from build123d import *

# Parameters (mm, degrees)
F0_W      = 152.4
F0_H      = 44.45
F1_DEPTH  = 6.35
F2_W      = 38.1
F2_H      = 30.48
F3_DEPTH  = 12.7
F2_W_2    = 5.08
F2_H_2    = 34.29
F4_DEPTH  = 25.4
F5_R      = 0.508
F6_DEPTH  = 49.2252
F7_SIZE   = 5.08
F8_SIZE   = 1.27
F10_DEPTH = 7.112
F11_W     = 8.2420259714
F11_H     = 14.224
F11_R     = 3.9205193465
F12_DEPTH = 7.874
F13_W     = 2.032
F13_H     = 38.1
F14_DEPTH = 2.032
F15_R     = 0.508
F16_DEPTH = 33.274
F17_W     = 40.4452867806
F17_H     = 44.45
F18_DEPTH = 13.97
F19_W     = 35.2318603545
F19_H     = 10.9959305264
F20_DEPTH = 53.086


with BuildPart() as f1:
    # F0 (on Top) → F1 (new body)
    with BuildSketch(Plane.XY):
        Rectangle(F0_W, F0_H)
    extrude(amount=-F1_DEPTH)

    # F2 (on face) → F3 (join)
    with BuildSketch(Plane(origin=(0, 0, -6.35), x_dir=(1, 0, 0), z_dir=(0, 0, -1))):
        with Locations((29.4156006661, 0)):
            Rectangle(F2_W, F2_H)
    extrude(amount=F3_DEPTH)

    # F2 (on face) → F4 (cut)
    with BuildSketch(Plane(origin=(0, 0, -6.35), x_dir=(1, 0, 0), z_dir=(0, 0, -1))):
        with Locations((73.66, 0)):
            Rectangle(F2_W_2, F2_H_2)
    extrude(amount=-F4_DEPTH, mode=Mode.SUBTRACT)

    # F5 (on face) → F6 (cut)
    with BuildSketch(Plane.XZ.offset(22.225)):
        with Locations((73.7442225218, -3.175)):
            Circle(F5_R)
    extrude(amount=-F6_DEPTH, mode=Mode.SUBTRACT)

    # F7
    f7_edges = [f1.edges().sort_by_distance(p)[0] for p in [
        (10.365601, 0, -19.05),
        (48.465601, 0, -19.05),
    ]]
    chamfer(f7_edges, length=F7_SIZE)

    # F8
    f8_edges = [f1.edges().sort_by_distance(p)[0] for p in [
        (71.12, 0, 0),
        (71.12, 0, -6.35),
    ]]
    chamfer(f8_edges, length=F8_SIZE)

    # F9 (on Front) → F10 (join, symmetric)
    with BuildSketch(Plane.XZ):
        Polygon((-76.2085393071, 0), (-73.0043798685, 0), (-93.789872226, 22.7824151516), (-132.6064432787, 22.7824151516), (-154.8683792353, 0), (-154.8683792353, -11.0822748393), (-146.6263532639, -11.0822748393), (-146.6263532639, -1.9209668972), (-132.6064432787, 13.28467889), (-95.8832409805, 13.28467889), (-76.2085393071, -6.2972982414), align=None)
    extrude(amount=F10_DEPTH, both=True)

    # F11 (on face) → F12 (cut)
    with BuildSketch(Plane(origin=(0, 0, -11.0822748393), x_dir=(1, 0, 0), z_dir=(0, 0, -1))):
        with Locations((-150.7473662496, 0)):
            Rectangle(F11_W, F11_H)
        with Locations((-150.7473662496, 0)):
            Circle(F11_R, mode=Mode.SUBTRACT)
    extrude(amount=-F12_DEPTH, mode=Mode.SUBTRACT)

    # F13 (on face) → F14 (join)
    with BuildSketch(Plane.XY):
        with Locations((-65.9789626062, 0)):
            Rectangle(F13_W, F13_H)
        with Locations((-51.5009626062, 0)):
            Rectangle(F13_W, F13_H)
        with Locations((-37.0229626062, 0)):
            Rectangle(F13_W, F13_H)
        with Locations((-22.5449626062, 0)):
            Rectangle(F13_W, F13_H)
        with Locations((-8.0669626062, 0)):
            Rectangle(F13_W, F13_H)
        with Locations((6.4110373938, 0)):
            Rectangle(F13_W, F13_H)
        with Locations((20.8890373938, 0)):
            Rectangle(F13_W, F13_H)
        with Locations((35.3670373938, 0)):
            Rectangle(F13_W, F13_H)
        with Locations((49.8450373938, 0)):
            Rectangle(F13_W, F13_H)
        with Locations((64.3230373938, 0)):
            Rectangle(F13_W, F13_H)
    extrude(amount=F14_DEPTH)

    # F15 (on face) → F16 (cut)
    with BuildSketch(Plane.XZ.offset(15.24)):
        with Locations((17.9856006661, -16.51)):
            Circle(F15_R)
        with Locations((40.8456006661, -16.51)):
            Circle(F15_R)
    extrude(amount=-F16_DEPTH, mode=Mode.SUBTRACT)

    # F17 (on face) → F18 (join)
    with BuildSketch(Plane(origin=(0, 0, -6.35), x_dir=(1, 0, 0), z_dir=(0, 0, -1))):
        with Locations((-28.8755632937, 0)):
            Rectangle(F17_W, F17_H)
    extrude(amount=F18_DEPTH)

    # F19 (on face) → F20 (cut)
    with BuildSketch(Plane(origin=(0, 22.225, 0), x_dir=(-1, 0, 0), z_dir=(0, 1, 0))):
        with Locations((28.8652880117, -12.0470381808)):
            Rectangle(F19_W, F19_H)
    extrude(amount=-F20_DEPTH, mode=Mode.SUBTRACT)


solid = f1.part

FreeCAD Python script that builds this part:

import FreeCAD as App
import Part
import Sketcher
from FreeCAD import Vector
Q = App.Units.Quantity


def edges_at(feature, points):
    """Names of the edges that pass closest to the given points."""
    edges = feature.Shape.Edges
    near = lambda p: min(range(len(edges)), key=lambda i: edges[i].distToShape(Part.Vertex(*p))[0])
    return sorted({f"Edge{near(p) + 1}" for p in points})

doc = App.newDocument("Part")
params = doc.addObject("Spreadsheet::Sheet", "Params")
for row, (alias, value) in enumerate([
    ("sketch1_width", "6 in"),
    ("sketch1_height", "1.75 in"),
    ("pad1_length", "0.25 in"),
    ("sketch2_width", "1.5 in"),
    ("sketch2_height", "1.2 in"),
    ("pad2_length", "0.5 in"),
    ("sketch3_width", "0.2 in"),
    ("sketch3_height", "1.35 in"),
    ("pocket1_length", "1 in"),
    ("sketch4_diameter", "0.04 in"),
    ("pocket2_length", "1.938 in"),
    ("chamfer_size", "0.2 in"),
    ("chamfer2_size", "0.05 in"),
    ("pad3_length", "0.56 in"),
    ("sketch6_height", "0.56 in"),
    ("pocket3_length", "0.31 in"),
    ("sketch7_height", "1.5 in"),
    ("sketch7_width", "0.08 in"),
    ("pad4_length", "0.08 in"),
    ("sketch8_diameter", "0.04 in"),
    ("pocket4_length", "1.31 in"),
    ("sketch9_height", "1.75 in"),
    ("pad5_length", "0.55 in"),
    ("pocket5_length", "2.09 in"),
], start=1):
    params.set(f"A{row}", alias)
    params.set(f"B{row}", "=" + value)
    params.setAlias(f"B{row}", alias)

body = doc.addObject("PartDesign::Body", "Body")

sketch1 = doc.addObject("Sketcher::SketchObject", "Sketch")
body.addObject(sketch1)
sketch1.AttachmentSupport = (doc.XY_Plane, [""])
sketch1.MapMode = "FlatFace"
sketch1.addGeometry([
    Part.LineSegment(Vector(-76, 22, 0), Vector(-76, -22, 0)),
    Part.LineSegment(Vector(-76, -22, 0), Vector(76, -22, 0)),
    Part.LineSegment(Vector(76, -22, 0), Vector(76, 22, 0)),
    Part.LineSegment(Vector(76, 22, 0), Vector(-76, 22, 0)),
], False)
sketch1.addConstraint([
    Sketcher.Constraint("Coincident", 0, 2, 1, 1),
    Sketcher.Constraint("Coincident", 1, 2, 2, 1),
    Sketcher.Constraint("Coincident", 2, 2, 3, 1),
    Sketcher.Constraint("Coincident", 3, 2, 0, 1),
    Sketcher.Constraint("Vertical", 0),
    Sketcher.Constraint("Horizontal", 1),
    Sketcher.Constraint("Vertical", 2),
    Sketcher.Constraint("Horizontal", 3),
    Sketcher.Constraint("Symmetric", 0, 2, 2, 2, -1, 1),
    Sketcher.Constraint("DistanceX", 1, 1, 1, 2, Q("6 in")),
    Sketcher.Constraint("DistanceY", 0, 2, 0, 1, Q("1.75 in")),
])
sketch1.setExpression("Constraints[9]", "Params.sketch1_width")
sketch1.setExpression("Constraints[10]", "Params.sketch1_height")
pad1 = doc.addObject("PartDesign::Pad", "Pad")
body.addObject(pad1)
pad1.Profile = sketch1
pad1.setExpression("Length", "Params.pad1_length")
pad1.Reversed = True

sketch2 = doc.addObject("Sketcher::SketchObject", "Sketch001")
body.addObject(sketch2)
sketch2.AttachmentSupport = (doc.XY_Plane, [""])
sketch2.MapMode = "FlatFace"
sketch2.AttachmentOffset = App.Placement(Vector(0, 0, -0.25 * 25.4), App.Rotation())
sketch2.addGeometry([
    Part.LineSegment(Vector(10, -15, 0), Vector(10, 15, 0)),
    Part.LineSegment(Vector(10, 15, 0), Vector(48, 15, 0)),
    Part.LineSegment(Vector(48, 15, 0), Vector(48, -15, 0)),
    Part.LineSegment(Vector(48, -15, 0), Vector(10, -15, 0)),
], False)
sketch2.addConstraint([
    Sketcher.Constraint("Coincident", 0, 2, 1, 1),
    Sketcher.Constraint("Coincident", 1, 2, 2, 1),
    Sketcher.Constraint("Coincident", 2, 2, 3, 1),
    Sketcher.Constraint("Coincident", 3, 2, 0, 1),
    Sketcher.Constraint("Vertical", 0),
    Sketcher.Constraint("Horizontal", 1),
    Sketcher.Constraint("Vertical", 2),
    Sketcher.Constraint("Horizontal", 3),
    Sketcher.Constraint("DistanceX", 1, 1, 1, 2, Q("1.5 in")),
    Sketcher.Constraint("DistanceY", 0, 1, 0, 2, Q("1.2 in")),
    Sketcher.Constraint("DistanceY", -1, 1, 0, 2, Q("0.6 in")),
    Sketcher.Constraint("DistanceX", -1, 1, 0, 2, Q("10.365601 mm")),
])
sketch2.setExpression("Constraints[8]", "Params.sketch2_width")
sketch2.setExpression("Constraints[9]", "Params.sketch2_height")
pad2 = doc.addObject("PartDesign::Pad", "Pad001")
body.addObject(pad2)
pad2.Profile = sketch2
pad2.setExpression("Length", "Params.pad2_length")
pad2.Reversed = True

sketch3 = doc.addObject("Sketcher::SketchObject", "Sketch002")
body.addObject(sketch3)
sketch3.AttachmentSupport = (doc.XY_Plane, [""])
sketch3.MapMode = "FlatFace"
sketch3.AttachmentOffset = App.Placement(Vector(0, 0, -0.25 * 25.4), App.Rotation())
sketch3.addGeometry([
    Part.LineSegment(Vector(71, -17, 0), Vector(71, 17, 0)),
    Part.LineSegment(Vector(71, 17, 0), Vector(76, 17, 0)),
    Part.LineSegment(Vector(76, 17, 0), Vector(76, -17, 0)),
    Part.LineSegment(Vector(76, -17, 0), Vector(71, -17, 0)),
], False)
sketch3.addConstraint([
    Sketcher.Constraint("Coincident", 0, 2, 1, 1),
    Sketcher.Constraint("Coincident", 1, 2, 2, 1),
    Sketcher.Constraint("Coincident", 2, 2, 3, 1),
    Sketcher.Constraint("Coincident", 3, 2, 0, 1),
    Sketcher.Constraint("Vertical", 0),
    Sketcher.Constraint("Horizontal", 1),
    Sketcher.Constraint("Vertical", 2),
    Sketcher.Constraint("Horizontal", 3),
    Sketcher.Constraint("DistanceX", 1, 1, 1, 2, Q("0.2 in")),
    Sketcher.Constraint("DistanceX", -1, 1, 1, 2, Q("3 in")),
    Sketcher.Constraint("DistanceY", 0, 1, 0, 2, Q("1.35 in")),
    Sketcher.Constraint("DistanceY", -1, 1, 0, 2, Q("0.675 in")),
])
sketch3.setExpression("Constraints[8]", "Params.sketch3_width")
sketch3.setExpression("Constraints[10]", "Params.sketch3_height")
pocket1 = doc.addObject("PartDesign::Pocket", "Pocket")
body.addObject(pocket1)
pocket1.Profile = sketch3
pocket1.setExpression("Length", "Params.pocket1_length")
pocket1.Reversed = True

sketch4 = doc.addObject("Sketcher::SketchObject", "Sketch003")
body.addObject(sketch4)
sketch4.AttachmentSupport = (doc.XZ_Plane, [""])
sketch4.MapMode = "FlatFace"
sketch4.AttachmentOffset = App.Placement(Vector(0, 0, 0.875 * 25.4), App.Rotation())
sketch4.addGeometry(Part.Circle(Vector(73.7, -3.2, 0), Vector(0, 0, 1), 0.5), False)
sketch4.addConstraint([
    Sketcher.Constraint("Diameter", 0, Q("0.04 in")),
    Sketcher.Constraint("DistanceY", 0, 3, -1, 1, Q("0.125 in")),
    Sketcher.Constraint("DistanceX", -1, 1, 0, 3, Q("73.744223 mm")),
])
sketch4.setExpression("Constraints[0]", "Params.sketch4_diameter")
pocket2 = doc.addObject("PartDesign::Pocket", "Pocket001")
body.addObject(pocket2)
pocket2.Profile = sketch4
pocket2.setExpression("Length", "Params.pocket2_length")
doc.recompute()

chamfer = doc.addObject("PartDesign::Chamfer", "Chamfer")
body.addObject(chamfer)
chamfer.Base = (pocket2, edges_at(pocket2, [(10.366, 0, -19.05), (48.466, 0, -19.05)]))
chamfer.setExpression("Size", "Params.chamfer_size")
doc.recompute()

chamfer2 = doc.addObject("PartDesign::Chamfer", "Chamfer001")
body.addObject(chamfer2)
chamfer2.Base = (chamfer, edges_at(chamfer, [(71.12, 0, 0), (71.12, 0, -6.35)]))
chamfer2.setExpression("Size", "Params.chamfer2_size")

sketch5 = doc.addObject("Sketcher::SketchObject", "Sketch004")
body.addObject(sketch5)
sketch5.AttachmentSupport = (doc.XZ_Plane, [""])
sketch5.MapMode = "FlatFace"
sketch5.addGeometry([
    Part.LineSegment(Vector(-76.2, 0, 0), Vector(-73, 0, 0)),
    Part.LineSegment(Vector(-73, 0, 0), Vector(-93.8, 22.8, 0)),
    Part.LineSegment(Vector(-93.8, 22.8, 0), Vector(-132.6, 22.8, 0)),
    Part.LineSegment(Vector(-132.6, 22.8, 0), Vector(-154.9, 0, 0)),
    Part.LineSegment(Vector(-154.9, 0, 0), Vector(-154.9, -11.1, 0)),
    Part.LineSegment(Vector(-154.9, -11.1, 0), Vector(-146.6, -11.1, 0)),
    Part.LineSegment(Vector(-146.6, -11.1, 0), Vector(-146.6, -1.9, 0)),
    Part.LineSegment(Vector(-146.6, -1.9, 0), Vector(-132.6, 13.3, 0)),
    Part.LineSegment(Vector(-132.6, 13.3, 0), Vector(-95.9, 13.3, 0)),
    Part.LineSegment(Vector(-95.9, 13.3, 0), Vector(-76.2, -6.3, 0)),
    Part.LineSegment(Vector(-76.2, -6.3, 0), Vector(-76.2, 0, 0)),
], False)
sketch5.addConstraint([
    Sketcher.Constraint("Coincident", 0, 2, 1, 1),
    Sketcher.Constraint("Coincident", 1, 2, 2, 1),
    Sketcher.Constraint("Coincident", 2, 2, 3, 1),
    Sketcher.Constraint("Coincident", 3, 2, 4, 1),
    Sketcher.Constraint("Coincident", 4, 2, 5, 1),
    Sketcher.Constraint("Coincident", 5, 2, 6, 1),
    Sketcher.Constraint("Coincident", 6, 2, 7, 1),
    Sketcher.Constraint("Coincident", 7, 2, 8, 1),
    Sketcher.Constraint("Coincident", 8, 2, 9, 1),
    Sketcher.Constraint("Coincident", 9, 2, 10, 1),
    Sketcher.Constraint("Coincident", 10, 2, 0, 1),
    Sketcher.Constraint("Horizontal", 0),
    Sketcher.Constraint("Horizontal", 2),
    Sketcher.Constraint("Vertical", 4),
    Sketcher.Constraint("Horizontal", 5),
    Sketcher.Constraint("Vertical", 6),
    Sketcher.Constraint("Horizontal", 8),
    Sketcher.Constraint("Vertical", 10),
    Sketcher.Constraint("PointOnObject", 0, 2, -1),
    Sketcher.Constraint("PointOnObject", 3, 2, -1),
    Sketcher.Constraint("Vertical", 2, 2, 7, 2),
    Sketcher.Constraint("DistanceY", 10, 1, 10, 2, Q("6.297298 mm")),
    Sketcher.Constraint("DistanceX", 0, 1, 0, 2, Q("3.204159 mm")),
    Sketcher.Constraint("DistanceX", 2, 2, 2, 1, Q("38.816571 mm")),
    Sketcher.Constraint("DistanceX", 3, 2, 0, 2, Q("81.863999 mm")),
    Sketcher.Constraint("DistanceX", 8, 2, 9, 2, Q("19.674702 mm")),
    Sketcher.Constraint("Distance", 7, Q("20.68259 mm")),
    Sketcher.Constraint("Distance", 9, Q("27.758741 mm")),
    Sketcher.Constraint("DistanceX", 5, 1, 5, 2, Q("8.242026 mm")),
    Sketcher.Constraint("DistanceX", 8, 1, 8, 2, Q("36.723202 mm")),
    Sketcher.Constraint("DistanceY", 4, 2, 4, 1, Q("11.082275 mm")),
    Sketcher.Constraint("DistanceX", 0, 2, -1, 1, Q("73.00438 mm")),
    Sketcher.Constraint("DistanceY", 4, 2, 2, 2, Q("33.86469 mm")),
])
pad3 = doc.addObject("PartDesign::Pad", "Pad002")
body.addObject(pad3)
pad3.Profile = sketch5
pad3.setExpression("Length", "Params.pad3_length")
pad3.Midplane = True

sketch6 = doc.addObject("Sketcher::SketchObject", "Sketch005")
body.addObject(sketch6)
sketch6.AttachmentSupport = (doc.XY_Plane, [""])
sketch6.MapMode = "FlatFace"
sketch6.AttachmentOffset = App.Placement(Vector(0, 0, -11.082275), App.Rotation())
sketch6.addGeometry([
    Part.LineSegment(Vector(-154.9, -7.1, 0), Vector(-154.9, 7.1, 0)),
    Part.LineSegment(Vector(-154.9, 7.1, 0), Vector(-146.6, 7.1, 0)),
    Part.LineSegment(Vector(-146.6, 7.1, 0), Vector(-146.6, -7.1, 0)),
    Part.LineSegment(Vector(-146.6, -7.1, 0), Vector(-154.9, -7.1, 0)),
    Part.Circle(Vector(-150.7, 0, 0), Vector(0, 0, 1), 3.9),
], False)
sketch6.addConstraint([
    Sketcher.Constraint("Coincident", 0, 2, 1, 1),
    Sketcher.Constraint("Coincident", 1, 2, 2, 1),
    Sketcher.Constraint("Coincident", 2, 2, 3, 1),
    Sketcher.Constraint("Coincident", 3, 2, 0, 1),
    Sketcher.Constraint("Vertical", 0),
    Sketcher.Constraint("Horizontal", 1),
    Sketcher.Constraint("Vertical", 2),
    Sketcher.Constraint("Horizontal", 3),
    Sketcher.Constraint("PointOnObject", 4, 3, -1),
    Sketcher.Constraint("DistanceY", 0, 1, 0, 2, Q("0.56 in")),
    Sketcher.Constraint("DistanceY", -1, 1, 0, 2, Q("0.28 in")),
    Sketcher.Constraint("Diameter", 4, Q("7.841039 mm")),
    Sketcher.Constraint("DistanceX", 1, 1, 1, 2, Q("8.242026 mm")),
    Sketcher.Constraint("DistanceX", 0, 2, -1, 1, Q("154.868379 mm")),
    Sketcher.Constraint("DistanceX", 4, 3, -1, 1, Q("150.747366 mm")),
])
sketch6.setExpression("Constraints[9]", "Params.sketch6_height")
pocket3 = doc.addObject("PartDesign::Pocket", "Pocket002")
body.addObject(pocket3)
pocket3.Profile = sketch6
pocket3.setExpression("Length", "Params.pocket3_length")
pocket3.Reversed = True

sketch7 = doc.addObject("Sketcher::SketchObject", "Sketch006")
body.addObject(sketch7)
sketch7.AttachmentSupport = (doc.XY_Plane, [""])
sketch7.MapMode = "FlatFace"
sketch7.addGeometry([
    Part.LineSegment(Vector(-67, 19.1, 0), Vector(-67, -19.1, 0)),
    Part.LineSegment(Vector(-67, -19.1, 0), Vector(-65, -19.1, 0)),
    Part.LineSegment(Vector(-65, -19.1, 0), Vector(-65, 19.1, 0)),
    Part.LineSegment(Vector(-65, 19.1, 0), Vector(-67, 19.1, 0)),
    Part.LineSegment(Vector(-52.5, 19.1, 0), Vector(-52.5, -19.1, 0)),
    Part.LineSegment(Vector(-52.5, -19.1, 0), Vector(-50.5, -19.1, 0)),
    Part.LineSegment(Vector(-50.5, -19.1, 0), Vector(-50.5, 19.1, 0)),
    Part.LineSegment(Vector(-50.5, 19.1, 0), Vector(-52.5, 19.1, 0)),
    Part.LineSegment(Vector(-38, 19.1, 0), Vector(-38, -19.1, 0)),
    Part.LineSegment(Vector(-38, -19.1, 0), Vector(-36, -19.1, 0)),
    Part.LineSegment(Vector(-36, -19.1, 0), Vector(-36, 19.1, 0)),
    Part.LineSegment(Vector(-36, 19.1, 0), Vector(-38, 19.1, 0)),
    Part.LineSegment(Vector(-23.6, 19.1, 0), Vector(-23.6, -19.1, 0)),
    Part.LineSegment(Vector(-23.6, -19.1, 0), Vector(-21.5, -19.1, 0)),
    Part.LineSegment(Vector(-21.5, -19.1, 0), Vector(-21.5, 19.1, 0)),
    Part.LineSegment(Vector(-21.5, 19.1, 0), Vector(-23.6, 19.1, 0)),
    Part.LineSegment(Vector(-9.1, 19.1, 0), Vector(-9.1, -19.1, 0)),
    Part.LineSegment(Vector(-9.1, -19.1, 0), Vector(-7.1, -19.1, 0)),
    Part.LineSegment(Vector(-7.1, -19.1, 0), Vector(-7.1, 19.1, 0)),
    Part.LineSegment(Vector(-7.1, 19.1, 0), Vector(-9.1, 19.1, 0)),
    Part.LineSegment(Vector(5.4, 19.1, 0), Vector(5.4, -19.1, 0)),
    Part.LineSegment(Vector(5.4, -19.1, 0), Vector(7.4, -19.1, 0)),
    Part.LineSegment(Vector(7.4, -19.1, 0), Vector(7.4, 19.1, 0)),
    Part.LineSegment(Vector(7.4, 19.1, 0), Vector(5.4, 19.1, 0)),
    Part.LineSegment(Vector(19.9, 19.1, 0), Vector(19.9, -19.1, 0)),
    Part.LineSegment(Vector(19.9, -19.1, 0), Vector(21.9, -19.1, 0)),
    Part.LineSegment(Vector(21.9, -19.1, 0), Vector(21.9, 19.1, 0)),
    Part.LineSegment(Vector(21.9, 19.1, 0), Vector(19.9, 19.1, 0)),
    Part.LineSegment(Vector(34.4, 19.1, 0), Vector(34.4, -19.1, 0)),
    Part.LineSegment(Vector(34.4, -19.1, 0), Vector(36.4, -19.1, 0)),
    Part.LineSegment(Vector(36.4, -19.1, 0), Vector(36.4, 19.1, 0)),
    Part.LineSegment(Vector(36.4, 19.1, 0), Vector(34.4, 19.1, 0)),
    Part.LineSegment(Vector(48.8, 19.1, 0), Vector(48.8, -19.1, 0)),
    Part.LineSegment(Vector(48.8, -19.1, 0), Vector(50.9, -19.1, 0)),
    Part.LineSegment(Vector(50.9, -19.1, 0), Vector(50.9, 19.1, 0)),
    Part.LineSegment(Vector(50.9, 19.1, 0), Vector(48.8, 19.1, 0)),
    Part.LineSegment(Vector(63.3, 19.1, 0), Vector(63.3, -19.1, 0)),
    Part.LineSegment(Vector(63.3, -19.1, 0), Vector(65.3, -19.1, 0)),
    Part.LineSegment(Vector(65.3, -19.1, 0), Vector(65.3, 19.1, 0)),
    Part.LineSegment(Vector(65.3, 19.1, 0), Vector(63.3, 19.1, 0)),
], False)
sketch7.addConstraint([
    Sketcher.Constraint("Coincident", 0, 2, 1, 1),
    Sketcher.Constraint("Coincident", 1, 2, 2, 1),
    Sketcher.Constraint("Coincident", 2, 2, 3, 1),
    Sketcher.Constraint("Coincident", 3, 2, 0, 1),
    Sketcher.Constraint("Coincident", 4, 2, 5, 1),
    Sketcher.Constraint("Coincident", 5, 2, 6, 1),
    Sketcher.Constraint("Coincident", 6, 2, 7, 1),
    Sketcher.Constraint("Coincident", 7, 2, 4, 1),
    Sketcher.Constraint("Coincident", 8, 2, 9, 1),
    Sketcher.Constraint("Coincident", 9, 2, 10, 1),
    Sketcher.Constraint("Coincident", 10, 2, 11, 1),
    Sketcher.Constraint("Coincident", 11, 2, 8, 1),
    Sketcher.Constraint("Coincident", 12, 2, 13, 1),
    Sketcher.Constraint("Coincident", 13, 2, 14, 1),
    Sketcher.Constraint("Coincident", 14, 2, 15, 1),
    Sketcher.Constraint("Coincident", 15, 2, 12, 1),
    Sketcher.Constraint("Coincident", 16, 2, 17, 1),
    Sketcher.Constraint("Coincident", 17, 2, 18, 1),
    Sketcher.Constraint("Coincident", 18, 2, 19, 1),
    Sketcher.Constraint("Coincident", 19, 2, 16, 1),
    Sketcher.Constraint("Coincident", 20, 2, 21, 1),
    Sketcher.Constraint("Coincident", 21, 2, 22, 1),
    Sketcher.Constraint("Coincident", 22, 2, 23, 1),
    Sketcher.Constraint("Coincident", 23, 2, 20, 1),
    Sketcher.Constraint("Coincident", 24, 2, 25, 1),
    Sketcher.Constraint("Coincident", 25, 2, 26, 1),
    Sketcher.Constraint("Coincident", 26, 2, 27, 1),
    Sketcher.Constraint("Coincident", 27, 2, 24, 1),
    Sketcher.Constraint("Coincident", 28, 2, 29, 1),
    Sketcher.Constraint("Coincident", 29, 2, 30, 1),
    Sketcher.Constraint("Coincident", 30, 2, 31, 1),
    Sketcher.Constraint("Coincident", 31, 2, 28, 1),
    Sketcher.Constraint("Coincident", 32, 2, 33, 1),
    Sketcher.Constraint("Coincident", 33, 2, 34, 1),
    Sketcher.Constraint("Coincident", 34, 2, 35, 1),
    Sketcher.Constraint("Coincident", 35, 2, 32, 1),
    Sketcher.Constraint("Coincident", 36, 2, 37, 1),
    Sketcher.Constraint("Coincident", 37, 2, 38, 1),
    Sketcher.Constraint("Coincident", 38, 2, 39, 1),
    Sketcher.Constraint("Coincident", 39, 2, 36, 1),
    Sketcher.Constraint("Vertical", 0),
    Sketcher.Constraint("Horizontal", 1),
    Sketcher.Constraint("Vertical", 2),
    Sketcher.Constraint("Horizontal", 3),
    Sketcher.Constraint("Vertical", 4),
    Sketcher.Constraint("Horizontal", 5),
    Sketcher.Constraint("Vertical", 6),
    Sketcher.Constraint("Horizontal", 7),
    Sketcher.Constraint("Vertical", 8),
    Sketcher.Constraint("Horizontal", 9),
    Sketcher.Constraint("Vertical", 10),
    Sketcher.Constraint("Horizontal", 11),
    Sketcher.Constraint("Vertical", 12),
    Sketcher.Constraint("Horizontal", 13),
    Sketcher.Constraint("Vertical", 14),
    Sketcher.Constraint("Horizontal", 15),
    Sketcher.Constraint("Vertical", 16),
    Sketcher.Constraint("Horizontal", 17),
    Sketcher.Constraint("Vertical", 18),
    Sketcher.Constraint("Horizontal", 19),
    Sketcher.Constraint("Vertical", 20),
    Sketcher.Constraint("Horizontal", 21),
    Sketcher.Constraint("Vertical", 22),
    Sketcher.Constraint("Horizontal", 23),
    Sketcher.Constraint("Vertical", 24),
    Sketcher.Constraint("Horizontal", 25),
    Sketcher.Constraint("Vertical", 26),
    Sketcher.Constraint("Horizontal", 27),
    Sketcher.Constraint("Vertical", 28),
    Sketcher.Constraint("Horizontal", 29),
    Sketcher.Constraint("Vertical", 30),
    Sketcher.Constraint("Horizontal", 31),
    Sketcher.Constraint("Vertical", 32),
    Sketcher.Constraint("Horizontal", 33),
    Sketcher.Constraint("Vertical", 34),
    Sketcher.Constraint("Horizontal", 35),
    Sketcher.Constraint("Vertical", 36),
    Sketcher.Constraint("Horizontal", 37),
    Sketcher.Constraint("Vertical", 38),
    Sketcher.Constraint("Horizontal", 39),
    Sketcher.Constraint("Horizontal", 1, 2, 4, 2),
    Sketcher.Constraint("Horizontal", 3, 2, 6, 2),
    Sketcher.Constraint("Horizontal", 5, 2, 8, 2),
    Sketcher.Constraint("Horizontal", 7, 2, 10, 2),
    Sketcher.Constraint("Horizontal", 9, 2, 12, 2),
    Sketcher.Constraint("Horizontal", 11, 2, 14, 2),
    Sketcher.Constraint("Horizontal", 13, 2, 16, 2),
    Sketcher.Constraint("Horizontal", 15, 2, 18, 2),
    Sketcher.Constraint("Horizontal", 17, 2, 20, 2),
    Sketcher.Constraint("Horizontal", 19, 2, 22, 2),
    Sketcher.Constraint("Horizontal", 21, 2, 24, 2),
    Sketcher.Constraint("Horizontal", 23, 2, 26, 2),
    Sketcher.Constraint("Horizontal", 25, 2, 28, 2),
    Sketcher.Constraint("Horizontal", 27, 2, 30, 2),
    Sketcher.Constraint("Horizontal", 29, 2, 32, 2),
    Sketcher.Constraint("Horizontal", 31, 2, 34, 2),
    Sketcher.Constraint("Horizontal", 33, 2, 36, 2),
    Sketcher.Constraint("Horizontal", 35, 2, 38, 2),
    Sketcher.Constraint("Equal", 3, 5),
    Sketcher.Constraint("Equal", 7, 9),
    Sketcher.Constraint("Equal", 11, 13),
    Sketcher.Constraint("Equal", 15, 17),
    Sketcher.Constraint("Equal", 19, 21),
    Sketcher.Constraint("Equal", 23, 25),
    Sketcher.Constraint("Equal", 27, 29),
    Sketcher.Constraint("Equal", 31, 33),
    Sketcher.Constraint("Equal", 35, 37),
    Sketcher.Constraint("DistanceY", 0, 2, 0, 1, Q("1.5 in")),
    Sketcher.Constraint("DistanceX", 1, 1, 1, 2, Q("0.08 in")),
    Sketcher.Constraint("DistanceY", 0, 2, -1, 1, Q("0.75 in")),
    Sketcher.Constraint("DistanceX", 1, 2, 4, 2, Q("0.49 in")),
    Sketcher.Constraint("DistanceX", 5, 2, 8, 2, Q("0.49 in")),
    Sketcher.Constraint("DistanceX", 9, 2, 12, 2, Q("0.49 in")),
    Sketcher.Constraint("DistanceX", 13, 2, 16, 2, Q("0.49 in")),
    Sketcher.Constraint("DistanceX", 17, 2, 20, 2, Q("0.49 in")),
    Sketcher.Constraint("DistanceX", 21, 2, 24, 2, Q("0.49 in")),
    Sketcher.Constraint("DistanceX", 25, 2, 28, 2, Q("0.49 in")),
    Sketcher.Constraint("DistanceX", 29, 2, 32, 2, Q("0.49 in")),
    Sketcher.Constraint("DistanceX", 33, 2, 36, 2, Q("0.49 in")),
    Sketcher.Constraint("DistanceX", 0, 2, -1, 1, Q("66.994963 mm")),
])
sketch7.setExpression("Constraints[107]", "Params.sketch7_height")
sketch7.setExpression("Constraints[108]", "Params.sketch7_width")
pad4 = doc.addObject("PartDesign::Pad", "Pad003")
body.addObject(pad4)
pad4.Profile = sketch7
pad4.setExpression("Length", "Params.pad4_length")

sketch8 = doc.addObject("Sketcher::SketchObject", "Sketch007")
body.addObject(sketch8)
sketch8.AttachmentSupport = (doc.XZ_Plane, [""])
sketch8.MapMode = "FlatFace"
sketch8.AttachmentOffset = App.Placement(Vector(0, 0, 0.6 * 25.4), App.Rotation())
sketch8.addGeometry([
    Part.Circle(Vector(18, -16.5, 0), Vector(0, 0, 1), 0.5),
    Part.Circle(Vector(40.8, -16.5, 0), Vector(0, 0, 1), 0.5),
], False)
sketch8.addConstraint([
    Sketcher.Constraint("Equal", 0, 1),
    Sketcher.Constraint("Horizontal", 0, 3, 1, 3),
    Sketcher.Constraint("Diameter", 0, Q("0.04 in")),
    Sketcher.Constraint("DistanceX", 0, 3, 1, 3, Q("0.9 in")),
    Sketcher.Constraint("DistanceY", 0, 3, -1, 1, Q("0.65 in")),
    Sketcher.Constraint("DistanceX", -1, 1, 0, 3, Q("17.985601 mm")),
])
sketch8.setExpression("Constraints[2]", "Params.sketch8_diameter")
pocket4 = doc.addObject("PartDesign::Pocket", "Pocket003")
body.addObject(pocket4)
pocket4.Profile = sketch8
pocket4.setExpression("Length", "Params.pocket4_length")

sketch9 = doc.addObject("Sketcher::SketchObject", "Sketch008")
body.addObject(sketch9)
sketch9.AttachmentSupport = (doc.XY_Plane, [""])
sketch9.MapMode = "FlatFace"
sketch9.AttachmentOffset = App.Placement(Vector(0, 0, -0.25 * 25.4), App.Rotation())
sketch9.addGeometry([
    Part.LineSegment(Vector(-49, -22, 0), Vector(-49, 22, 0)),
    Part.LineSegment(Vector(-49, 22, 0), Vector(-9, 22, 0)),
    Part.LineSegment(Vector(-9, 22, 0), Vector(-9, -22, 0)),
    Part.LineSegment(Vector(-9, -22, 0), Vector(-49, -22, 0)),
], False)
sketch9.addConstraint([
    Sketcher.Constraint("Coincident", 0, 2, 1, 1),
    Sketcher.Constraint("Coincident", 1, 2, 2, 1),
    Sketcher.Constraint("Coincident", 2, 2, 3, 1),
    Sketcher.Constraint("Coincident", 3, 2, 0, 1),
    Sketcher.Constraint("Vertical", 0),
    Sketcher.Constraint("Horizontal", 1),
    Sketcher.Constraint("Vertical", 2),
    Sketcher.Constraint("Horizontal", 3),
    Sketcher.Constraint("DistanceY", 0, 1, 0, 2, Q("1.75 in")),
    Sketcher.Constraint("DistanceY", -1, 1, 0, 2, Q("0.875 in")),
    Sketcher.Constraint("DistanceX", 1, 1, 1, 2, Q("40.445287 mm")),
    Sketcher.Constraint("DistanceX", 1, 2, -1, 1, Q("8.65292 mm")),
])
sketch9.setExpression("Constraints[8]", "Params.sketch9_height")
pad5 = doc.addObject("PartDesign::Pad", "Pad004")
body.addObject(pad5)
pad5.Profile = sketch9
pad5.setExpression("Length", "Params.pad5_length")
pad5.Reversed = True

sketch10 = doc.addObject("Sketcher::SketchObject", "Sketch009")
body.addObject(sketch10)
sketch10.AttachmentSupport = (doc.XZ_Plane, [""])
sketch10.MapMode = "FlatFace"
sketch10.AttachmentOffset = App.Placement(Vector(0, 0, -0.875 * 25.4), App.Rotation())
sketch10.addGeometry([
    Part.LineSegment(Vector(-11, -7, 0), Vector(-11, -18, 0)),
    Part.LineSegment(Vector(-11, -18, 0), Vector(-46, -18, 0)),
    Part.LineSegment(Vector(-46, -18, 0), Vector(-46, -7, 0)),
    Part.LineSegment(Vector(-46, -7, 0), Vector(-11, -7, 0)),
], False)
sketch10.addConstraint([
    Sketcher.Constraint("Coincident", 0, 2, 1, 1),
    Sketcher.Constraint("Coincident", 1, 2, 2, 1),
    Sketcher.Constraint("Coincident", 2, 2, 3, 1),
    Sketcher.Constraint("Coincident", 3, 2, 0, 1),
    Sketcher.Constraint("Vertical", 0),
    Sketcher.Constraint("Horizontal", 1),
    Sketcher.Constraint("Vertical", 2),
    Sketcher.Constraint("Horizontal", 3),
    Sketcher.Constraint("DistanceX", 1, 2, 1, 1, Q("35.23186 mm")),
    Sketcher.Constraint("DistanceY", 0, 2, 0, 1, Q("10.995931 mm")),
    Sketcher.Constraint("DistanceX", 1, 2, -1, 1, Q("46.481218 mm")),
    Sketcher.Constraint("DistanceY", 0, 2, -1, 1, Q("17.545003 mm")),
])
pocket5 = doc.addObject("PartDesign::Pocket", "Pocket004")
body.addObject(pocket5)
pocket5.Profile = sketch10
pocket5.setExpression("Length", "Params.pocket5_length")
pocket5.Reversed = True

doc.recompute()
